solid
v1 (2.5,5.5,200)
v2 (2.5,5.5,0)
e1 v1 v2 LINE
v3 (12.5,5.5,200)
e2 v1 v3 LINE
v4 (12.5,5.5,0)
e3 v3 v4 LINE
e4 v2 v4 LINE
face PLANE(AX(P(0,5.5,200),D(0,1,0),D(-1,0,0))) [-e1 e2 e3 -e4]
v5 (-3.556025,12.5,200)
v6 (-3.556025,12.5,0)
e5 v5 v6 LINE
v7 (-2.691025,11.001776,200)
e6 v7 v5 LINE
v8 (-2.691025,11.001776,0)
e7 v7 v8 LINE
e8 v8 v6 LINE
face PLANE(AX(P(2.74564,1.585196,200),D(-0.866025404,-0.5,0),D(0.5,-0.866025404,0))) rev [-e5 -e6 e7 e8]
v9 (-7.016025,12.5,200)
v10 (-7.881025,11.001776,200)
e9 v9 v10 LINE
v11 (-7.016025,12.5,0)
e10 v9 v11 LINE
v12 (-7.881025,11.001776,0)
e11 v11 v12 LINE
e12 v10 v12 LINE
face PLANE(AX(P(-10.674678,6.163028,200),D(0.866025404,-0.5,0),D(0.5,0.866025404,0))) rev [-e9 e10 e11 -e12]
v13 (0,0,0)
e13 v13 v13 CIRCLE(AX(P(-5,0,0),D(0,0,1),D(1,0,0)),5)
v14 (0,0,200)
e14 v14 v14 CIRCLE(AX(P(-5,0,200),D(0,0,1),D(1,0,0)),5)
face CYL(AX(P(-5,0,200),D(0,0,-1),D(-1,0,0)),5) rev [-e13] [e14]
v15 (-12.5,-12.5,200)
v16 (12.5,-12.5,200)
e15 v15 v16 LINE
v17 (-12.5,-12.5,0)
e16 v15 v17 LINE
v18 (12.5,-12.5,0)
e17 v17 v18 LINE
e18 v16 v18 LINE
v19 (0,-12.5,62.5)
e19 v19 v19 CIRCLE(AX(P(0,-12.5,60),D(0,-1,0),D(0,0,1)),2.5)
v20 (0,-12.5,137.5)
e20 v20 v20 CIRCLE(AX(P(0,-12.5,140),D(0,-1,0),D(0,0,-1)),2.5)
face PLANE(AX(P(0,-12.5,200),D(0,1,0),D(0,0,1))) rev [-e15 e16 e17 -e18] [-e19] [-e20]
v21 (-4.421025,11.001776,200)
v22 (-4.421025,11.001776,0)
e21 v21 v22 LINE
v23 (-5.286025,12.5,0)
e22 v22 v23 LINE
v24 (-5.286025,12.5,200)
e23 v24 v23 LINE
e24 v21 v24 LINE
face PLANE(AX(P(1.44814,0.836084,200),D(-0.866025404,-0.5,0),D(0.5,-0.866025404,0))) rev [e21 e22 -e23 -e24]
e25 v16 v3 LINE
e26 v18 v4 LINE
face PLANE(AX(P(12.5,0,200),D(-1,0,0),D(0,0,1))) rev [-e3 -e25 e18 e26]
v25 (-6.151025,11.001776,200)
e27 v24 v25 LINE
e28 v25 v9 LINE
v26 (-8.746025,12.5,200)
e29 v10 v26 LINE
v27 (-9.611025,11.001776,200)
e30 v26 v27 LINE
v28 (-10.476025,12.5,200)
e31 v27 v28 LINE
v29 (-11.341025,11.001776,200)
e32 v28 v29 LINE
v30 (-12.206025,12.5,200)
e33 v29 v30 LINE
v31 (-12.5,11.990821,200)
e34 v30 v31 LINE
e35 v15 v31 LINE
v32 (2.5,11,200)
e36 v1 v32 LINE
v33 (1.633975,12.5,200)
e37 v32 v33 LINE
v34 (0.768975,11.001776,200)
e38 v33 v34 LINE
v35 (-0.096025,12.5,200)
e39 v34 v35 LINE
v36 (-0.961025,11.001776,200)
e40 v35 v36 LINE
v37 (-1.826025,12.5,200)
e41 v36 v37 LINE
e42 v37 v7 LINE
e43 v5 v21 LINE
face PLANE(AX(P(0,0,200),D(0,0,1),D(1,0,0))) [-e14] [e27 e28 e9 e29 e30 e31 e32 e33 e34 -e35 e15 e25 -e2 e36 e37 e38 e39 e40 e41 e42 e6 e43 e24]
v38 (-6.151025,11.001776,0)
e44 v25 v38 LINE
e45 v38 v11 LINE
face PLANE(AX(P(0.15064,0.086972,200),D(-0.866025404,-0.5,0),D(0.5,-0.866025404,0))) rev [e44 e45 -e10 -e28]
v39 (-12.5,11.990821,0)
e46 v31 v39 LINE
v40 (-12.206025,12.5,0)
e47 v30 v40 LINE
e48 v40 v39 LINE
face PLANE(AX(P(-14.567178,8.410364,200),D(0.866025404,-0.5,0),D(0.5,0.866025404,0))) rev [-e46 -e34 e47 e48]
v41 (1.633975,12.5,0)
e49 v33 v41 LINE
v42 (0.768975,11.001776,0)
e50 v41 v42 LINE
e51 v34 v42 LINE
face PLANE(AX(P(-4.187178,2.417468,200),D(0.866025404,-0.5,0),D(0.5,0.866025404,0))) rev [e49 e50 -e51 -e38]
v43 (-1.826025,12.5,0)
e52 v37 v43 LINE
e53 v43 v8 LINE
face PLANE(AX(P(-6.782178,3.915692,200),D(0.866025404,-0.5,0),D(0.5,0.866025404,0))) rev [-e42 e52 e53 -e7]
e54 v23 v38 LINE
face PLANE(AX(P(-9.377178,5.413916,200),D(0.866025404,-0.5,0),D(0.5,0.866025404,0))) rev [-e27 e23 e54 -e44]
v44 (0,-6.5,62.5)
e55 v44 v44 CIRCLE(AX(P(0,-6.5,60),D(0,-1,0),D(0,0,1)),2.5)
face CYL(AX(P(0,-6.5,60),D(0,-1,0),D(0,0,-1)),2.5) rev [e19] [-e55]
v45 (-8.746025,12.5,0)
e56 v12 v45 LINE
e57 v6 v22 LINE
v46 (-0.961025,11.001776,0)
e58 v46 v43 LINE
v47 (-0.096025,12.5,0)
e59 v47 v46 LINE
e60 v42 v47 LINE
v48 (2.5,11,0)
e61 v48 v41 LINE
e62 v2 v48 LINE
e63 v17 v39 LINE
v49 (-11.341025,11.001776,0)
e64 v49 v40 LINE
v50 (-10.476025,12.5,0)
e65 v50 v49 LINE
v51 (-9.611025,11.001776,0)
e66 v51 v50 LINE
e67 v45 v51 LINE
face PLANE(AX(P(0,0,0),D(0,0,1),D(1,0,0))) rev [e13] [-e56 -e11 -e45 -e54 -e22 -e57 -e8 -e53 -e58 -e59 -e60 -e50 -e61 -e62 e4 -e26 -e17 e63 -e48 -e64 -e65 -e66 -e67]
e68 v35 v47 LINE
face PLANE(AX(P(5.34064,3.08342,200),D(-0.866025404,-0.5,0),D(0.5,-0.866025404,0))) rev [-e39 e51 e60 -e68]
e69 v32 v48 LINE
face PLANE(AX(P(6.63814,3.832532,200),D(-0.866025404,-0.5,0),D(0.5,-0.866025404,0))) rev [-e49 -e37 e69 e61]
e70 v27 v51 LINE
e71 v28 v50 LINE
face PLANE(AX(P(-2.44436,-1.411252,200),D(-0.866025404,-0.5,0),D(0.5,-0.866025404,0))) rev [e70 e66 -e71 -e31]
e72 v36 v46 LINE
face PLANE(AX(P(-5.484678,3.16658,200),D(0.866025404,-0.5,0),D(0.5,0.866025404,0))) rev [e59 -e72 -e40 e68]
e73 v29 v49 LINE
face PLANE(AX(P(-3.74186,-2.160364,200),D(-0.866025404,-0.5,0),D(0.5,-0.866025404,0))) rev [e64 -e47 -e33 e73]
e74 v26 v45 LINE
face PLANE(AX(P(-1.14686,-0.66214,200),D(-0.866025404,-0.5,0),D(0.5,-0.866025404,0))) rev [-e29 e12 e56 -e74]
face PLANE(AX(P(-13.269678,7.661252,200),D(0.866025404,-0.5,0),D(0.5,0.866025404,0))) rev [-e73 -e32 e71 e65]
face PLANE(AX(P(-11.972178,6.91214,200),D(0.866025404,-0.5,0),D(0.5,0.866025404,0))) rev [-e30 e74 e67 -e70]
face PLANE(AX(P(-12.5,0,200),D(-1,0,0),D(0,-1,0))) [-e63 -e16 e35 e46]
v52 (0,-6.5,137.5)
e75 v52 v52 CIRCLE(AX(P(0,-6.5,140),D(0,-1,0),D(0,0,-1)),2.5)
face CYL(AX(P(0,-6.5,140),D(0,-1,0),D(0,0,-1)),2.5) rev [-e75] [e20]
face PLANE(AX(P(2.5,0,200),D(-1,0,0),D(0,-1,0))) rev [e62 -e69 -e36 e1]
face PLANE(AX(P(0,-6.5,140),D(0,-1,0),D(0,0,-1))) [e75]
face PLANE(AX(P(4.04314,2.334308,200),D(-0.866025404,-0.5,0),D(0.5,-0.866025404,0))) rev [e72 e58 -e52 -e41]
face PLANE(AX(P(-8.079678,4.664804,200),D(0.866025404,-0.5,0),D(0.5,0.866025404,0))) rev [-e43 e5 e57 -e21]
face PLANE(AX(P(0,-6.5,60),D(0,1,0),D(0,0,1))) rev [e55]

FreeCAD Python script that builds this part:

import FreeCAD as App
import Part
import Sketcher

V = App.Vector
Q = App.Units.Quantity


def add_polygon(sketch, points):
    """Adds a closed chain of lines whose ends are joined by coincident constraints."""
    first, n = sketch.GeometryCount, len(points)
    for a, b in zip(points, points[1:] + points[:1]):
        sketch.addGeometry(Part.LineSegment(App.Vector(*a, 0), App.Vector(*b, 0)), False)
    for i in range(n):
        sketch.addConstraint(Sketcher.Constraint("Coincident", first + i, 2, first + (i + 1) % n, 1))

doc = App.newDocument("Part")
body = doc.addObject("PartDesign::Body", "Body")

# Sketch on XY plane
sketch1 = body.newObject("Sketcher::SketchObject", "Sketch")
sketch1.AttachmentSupport = (doc.getObject("XY_Plane"), [""])
sketch1.MapMode = "FlatFace"
add_polygon(sketch1, [(-12.5, 11.990821), (-12.5, -12.5), (12.5, -12.5), (12.5, 5.5), (2.5, 5.5), (2.5, 11), (2.498975, 11.001776), (1.633975, 12.5), (0.768975, 11.001776), (-0.096025, 12.5), (-0.961025, 11.001776), (-1.826025, 12.5), (-2.691025, 11.001776), (-3.556025, 12.5), (-4.421025, 11.001776), (-5.286025, 12.5), (-6.151025, 11.001776), (-7.016025, 12.5), (-7.881025, 11.001776), (-8.746025, 12.5), (-9.611025, 11.001776), (-10.476025, 12.5), (-11.341025, 11.001776), (-12.206025, 12.5)])  # lines 0-23
sketch1.addGeometry(Part.Circle(V(-5, 0, 0), V(0, 0, 1), 5), False)  # 24
sketch1.addConstraint(Sketcher.Constraint("Vertical", 0))
sketch1.addConstraint(Sketcher.Constraint("Horizontal", 1))
sketch1.addConstraint(Sketcher.Constraint("Vertical", 2))
sketch1.addConstraint(Sketcher.Constraint("Horizontal", 3))
sketch1.addConstraint(Sketcher.Constraint("Vertical", 4))
sketch1.addConstraint(Sketcher.Constraint("PointOnObject", 24, 3, -1))
sketch1.addConstraint(Sketcher.Constraint("Parallel", 5, 6))
sketch1.addConstraint(Sketcher.Constraint("Parallel", 6, 8))
sketch1.addConstraint(Sketcher.Constraint("Parallel", 7, 9))
sketch1.addConstraint(Sketcher.Constraint("Parallel", 8, 10))
sketch1.addConstraint(Sketcher.Constraint("Parallel", 9, 11))
sketch1.addConstraint(Sketcher.Constraint("Parallel", 10, 12))
sketch1.addConstraint(Sketcher.Constraint("Parallel", 11, 13))
sketch1.addConstraint(Sketcher.Constraint("Parallel", 12, 14))
sketch1.addConstraint(Sketcher.Constraint("Parallel", 13, 15))
sketch1.addConstraint(Sketcher.Constraint("Parallel", 14, 16))
sketch1.addConstraint(Sketcher.Constraint("Parallel", 15, 17))
sketch1.addConstraint(Sketcher.Constraint("Parallel", 16, 18))
sketch1.addConstraint(Sketcher.Constraint("Parallel", 17, 19))
sketch1.addConstraint(Sketcher.Constraint("Parallel", 18, 20))
sketch1.addConstraint(Sketcher.Constraint("Parallel", 19, 21))
sketch1.addConstraint(Sketcher.Constraint("Parallel", 20, 22))
sketch1.addConstraint(Sketcher.Constraint("Parallel", 21, 23))
sketch1.addConstraint(Sketcher.Constraint("Horizontal", 5, 2, 7, 2))
sketch1.addConstraint(Sketcher.Constraint("Horizontal", 6, 2, 8, 2))
sketch1.addConstraint(Sketcher.Constraint("Horizontal", 7, 2, 9, 2))
sketch1.addConstraint(Sketcher.Constraint("Horizontal", 8, 2, 10, 2))
sketch1.addConstraint(Sketcher.Constraint("Horizontal", 9, 2, 11, 2))
sketch1.addConstraint(Sketcher.Constraint("Horizontal", 10, 2, 12, 2))
sketch1.addConstraint(Sketcher.Constraint("Horizontal", 11, 2, 13, 2))
sketch1.addConstraint(Sketcher.Constraint("Horizontal", 12, 2, 14, 2))
sketch1.addConstraint(Sketcher.Constraint("Horizontal", 13, 2, 15, 2))
sketch1.addConstraint(Sketcher.Constraint("Horizontal", 14, 2, 16, 2))
sketch1.addConstraint(Sketcher.Constraint("Horizontal", 15, 2, 17, 2))
sketch1.addConstraint(Sketcher.Constraint("Horizontal", 16, 2, 18, 2))
sketch1.addConstraint(Sketcher.Constraint("Horizontal", 17, 2, 19, 2))
sketch1.addConstraint(Sketcher.Constraint("Horizontal", 18, 2, 20, 2))
sketch1.addConstraint(Sketcher.Constraint("Horizontal", 19, 2, 21, 2))
sketch1.addConstraint(Sketcher.Constraint("Horizontal", 20, 2, 22, 2))
sketch1.addConstraint(Sketcher.Constraint("Equal", 6, 7))
sketch1.addConstraint(Sketcher.Constraint("Diameter", 24, 10.0))
sketch1.addConstraint(Sketcher.Constraint("DistanceX", 1, 1, 1, 2, 25.0))
sketch1.addConstraint(Sketcher.Constraint("DistanceX", 3, 2, 3, 1, 10.0))
sketch1.addConstraint(Sketcher.Constraint("DistanceY", 2, 1, 2, 2, 18.0))
sketch1.addConstraint(Sketcher.Constraint("Angle", 6, Q("120 deg")))
sketch1.addConstraint(Sketcher.Constraint("DistanceY", 4, 1, 4, 2, 5.5))
sketch1.addConstraint(Sketcher.Constraint("DistanceX", 24, 3, -1, 1, 5.0))
sketch1.addConstraint(Sketcher.Constraint("DistanceY", -1, 1, 4, 2, 11.0))
sketch1.addConstraint(Sketcher.Constraint("DistanceY", 3, 2, 6, 2, 7.0))
sketch1.addConstraint(Sketcher.Constraint("DistanceX", 0, 2, -1, 1, 12.5))
sketch1.addConstraint(Sketcher.Constraint("Distance", 6, 1.73))
pad1 = body.newObject("PartDesign::Pad", "Pad")
pad1.Profile = sketch1
pad1.Length = 200

# Sketch on XZ plane
sketch2 = body.newObject("Sketcher::SketchObject", "Sketch001")
sketch2.AttachmentSupport = (doc.getObject("XZ_Plane"), [""])
sketch2.MapMode = "FlatFace"
sketch2.AttachmentOffset = App.Placement(V(0, 0, 12.5), App.Rotation())
sketch2.addGeometry(Part.Circle(V(0, 140, 0), V(0, 0, 1), 2.5), False)
sketch2.addGeometry(Part.Circle(V(0, 60, 0), V(0, 0, 1), 2.5), False)
sketch2.addConstraint(Sketcher.Constraint("Equal", 0, 1))
sketch2.addConstraint(Sketcher.Constraint("PointOnObject", 0, 3, -2))
sketch2.addConstraint(Sketcher.Constraint("PointOnObject", 1, 3, -2))
sketch2.addConstraint(Sketcher.Constraint("Diameter", 0, 5.0))
sketch2.addConstraint(Sketcher.Constraint("DistanceY", -1, 1, 0, 3, 140.0))
sketch2.addConstraint(Sketcher.Constraint("DistanceY", -1, 1, 1, 3, 60.0))
pocket1 = body.newObject("PartDesign::Pocket", "Pocket")
pocket1.Profile = sketch2
pocket1.Length = 6

doc.recompute()
